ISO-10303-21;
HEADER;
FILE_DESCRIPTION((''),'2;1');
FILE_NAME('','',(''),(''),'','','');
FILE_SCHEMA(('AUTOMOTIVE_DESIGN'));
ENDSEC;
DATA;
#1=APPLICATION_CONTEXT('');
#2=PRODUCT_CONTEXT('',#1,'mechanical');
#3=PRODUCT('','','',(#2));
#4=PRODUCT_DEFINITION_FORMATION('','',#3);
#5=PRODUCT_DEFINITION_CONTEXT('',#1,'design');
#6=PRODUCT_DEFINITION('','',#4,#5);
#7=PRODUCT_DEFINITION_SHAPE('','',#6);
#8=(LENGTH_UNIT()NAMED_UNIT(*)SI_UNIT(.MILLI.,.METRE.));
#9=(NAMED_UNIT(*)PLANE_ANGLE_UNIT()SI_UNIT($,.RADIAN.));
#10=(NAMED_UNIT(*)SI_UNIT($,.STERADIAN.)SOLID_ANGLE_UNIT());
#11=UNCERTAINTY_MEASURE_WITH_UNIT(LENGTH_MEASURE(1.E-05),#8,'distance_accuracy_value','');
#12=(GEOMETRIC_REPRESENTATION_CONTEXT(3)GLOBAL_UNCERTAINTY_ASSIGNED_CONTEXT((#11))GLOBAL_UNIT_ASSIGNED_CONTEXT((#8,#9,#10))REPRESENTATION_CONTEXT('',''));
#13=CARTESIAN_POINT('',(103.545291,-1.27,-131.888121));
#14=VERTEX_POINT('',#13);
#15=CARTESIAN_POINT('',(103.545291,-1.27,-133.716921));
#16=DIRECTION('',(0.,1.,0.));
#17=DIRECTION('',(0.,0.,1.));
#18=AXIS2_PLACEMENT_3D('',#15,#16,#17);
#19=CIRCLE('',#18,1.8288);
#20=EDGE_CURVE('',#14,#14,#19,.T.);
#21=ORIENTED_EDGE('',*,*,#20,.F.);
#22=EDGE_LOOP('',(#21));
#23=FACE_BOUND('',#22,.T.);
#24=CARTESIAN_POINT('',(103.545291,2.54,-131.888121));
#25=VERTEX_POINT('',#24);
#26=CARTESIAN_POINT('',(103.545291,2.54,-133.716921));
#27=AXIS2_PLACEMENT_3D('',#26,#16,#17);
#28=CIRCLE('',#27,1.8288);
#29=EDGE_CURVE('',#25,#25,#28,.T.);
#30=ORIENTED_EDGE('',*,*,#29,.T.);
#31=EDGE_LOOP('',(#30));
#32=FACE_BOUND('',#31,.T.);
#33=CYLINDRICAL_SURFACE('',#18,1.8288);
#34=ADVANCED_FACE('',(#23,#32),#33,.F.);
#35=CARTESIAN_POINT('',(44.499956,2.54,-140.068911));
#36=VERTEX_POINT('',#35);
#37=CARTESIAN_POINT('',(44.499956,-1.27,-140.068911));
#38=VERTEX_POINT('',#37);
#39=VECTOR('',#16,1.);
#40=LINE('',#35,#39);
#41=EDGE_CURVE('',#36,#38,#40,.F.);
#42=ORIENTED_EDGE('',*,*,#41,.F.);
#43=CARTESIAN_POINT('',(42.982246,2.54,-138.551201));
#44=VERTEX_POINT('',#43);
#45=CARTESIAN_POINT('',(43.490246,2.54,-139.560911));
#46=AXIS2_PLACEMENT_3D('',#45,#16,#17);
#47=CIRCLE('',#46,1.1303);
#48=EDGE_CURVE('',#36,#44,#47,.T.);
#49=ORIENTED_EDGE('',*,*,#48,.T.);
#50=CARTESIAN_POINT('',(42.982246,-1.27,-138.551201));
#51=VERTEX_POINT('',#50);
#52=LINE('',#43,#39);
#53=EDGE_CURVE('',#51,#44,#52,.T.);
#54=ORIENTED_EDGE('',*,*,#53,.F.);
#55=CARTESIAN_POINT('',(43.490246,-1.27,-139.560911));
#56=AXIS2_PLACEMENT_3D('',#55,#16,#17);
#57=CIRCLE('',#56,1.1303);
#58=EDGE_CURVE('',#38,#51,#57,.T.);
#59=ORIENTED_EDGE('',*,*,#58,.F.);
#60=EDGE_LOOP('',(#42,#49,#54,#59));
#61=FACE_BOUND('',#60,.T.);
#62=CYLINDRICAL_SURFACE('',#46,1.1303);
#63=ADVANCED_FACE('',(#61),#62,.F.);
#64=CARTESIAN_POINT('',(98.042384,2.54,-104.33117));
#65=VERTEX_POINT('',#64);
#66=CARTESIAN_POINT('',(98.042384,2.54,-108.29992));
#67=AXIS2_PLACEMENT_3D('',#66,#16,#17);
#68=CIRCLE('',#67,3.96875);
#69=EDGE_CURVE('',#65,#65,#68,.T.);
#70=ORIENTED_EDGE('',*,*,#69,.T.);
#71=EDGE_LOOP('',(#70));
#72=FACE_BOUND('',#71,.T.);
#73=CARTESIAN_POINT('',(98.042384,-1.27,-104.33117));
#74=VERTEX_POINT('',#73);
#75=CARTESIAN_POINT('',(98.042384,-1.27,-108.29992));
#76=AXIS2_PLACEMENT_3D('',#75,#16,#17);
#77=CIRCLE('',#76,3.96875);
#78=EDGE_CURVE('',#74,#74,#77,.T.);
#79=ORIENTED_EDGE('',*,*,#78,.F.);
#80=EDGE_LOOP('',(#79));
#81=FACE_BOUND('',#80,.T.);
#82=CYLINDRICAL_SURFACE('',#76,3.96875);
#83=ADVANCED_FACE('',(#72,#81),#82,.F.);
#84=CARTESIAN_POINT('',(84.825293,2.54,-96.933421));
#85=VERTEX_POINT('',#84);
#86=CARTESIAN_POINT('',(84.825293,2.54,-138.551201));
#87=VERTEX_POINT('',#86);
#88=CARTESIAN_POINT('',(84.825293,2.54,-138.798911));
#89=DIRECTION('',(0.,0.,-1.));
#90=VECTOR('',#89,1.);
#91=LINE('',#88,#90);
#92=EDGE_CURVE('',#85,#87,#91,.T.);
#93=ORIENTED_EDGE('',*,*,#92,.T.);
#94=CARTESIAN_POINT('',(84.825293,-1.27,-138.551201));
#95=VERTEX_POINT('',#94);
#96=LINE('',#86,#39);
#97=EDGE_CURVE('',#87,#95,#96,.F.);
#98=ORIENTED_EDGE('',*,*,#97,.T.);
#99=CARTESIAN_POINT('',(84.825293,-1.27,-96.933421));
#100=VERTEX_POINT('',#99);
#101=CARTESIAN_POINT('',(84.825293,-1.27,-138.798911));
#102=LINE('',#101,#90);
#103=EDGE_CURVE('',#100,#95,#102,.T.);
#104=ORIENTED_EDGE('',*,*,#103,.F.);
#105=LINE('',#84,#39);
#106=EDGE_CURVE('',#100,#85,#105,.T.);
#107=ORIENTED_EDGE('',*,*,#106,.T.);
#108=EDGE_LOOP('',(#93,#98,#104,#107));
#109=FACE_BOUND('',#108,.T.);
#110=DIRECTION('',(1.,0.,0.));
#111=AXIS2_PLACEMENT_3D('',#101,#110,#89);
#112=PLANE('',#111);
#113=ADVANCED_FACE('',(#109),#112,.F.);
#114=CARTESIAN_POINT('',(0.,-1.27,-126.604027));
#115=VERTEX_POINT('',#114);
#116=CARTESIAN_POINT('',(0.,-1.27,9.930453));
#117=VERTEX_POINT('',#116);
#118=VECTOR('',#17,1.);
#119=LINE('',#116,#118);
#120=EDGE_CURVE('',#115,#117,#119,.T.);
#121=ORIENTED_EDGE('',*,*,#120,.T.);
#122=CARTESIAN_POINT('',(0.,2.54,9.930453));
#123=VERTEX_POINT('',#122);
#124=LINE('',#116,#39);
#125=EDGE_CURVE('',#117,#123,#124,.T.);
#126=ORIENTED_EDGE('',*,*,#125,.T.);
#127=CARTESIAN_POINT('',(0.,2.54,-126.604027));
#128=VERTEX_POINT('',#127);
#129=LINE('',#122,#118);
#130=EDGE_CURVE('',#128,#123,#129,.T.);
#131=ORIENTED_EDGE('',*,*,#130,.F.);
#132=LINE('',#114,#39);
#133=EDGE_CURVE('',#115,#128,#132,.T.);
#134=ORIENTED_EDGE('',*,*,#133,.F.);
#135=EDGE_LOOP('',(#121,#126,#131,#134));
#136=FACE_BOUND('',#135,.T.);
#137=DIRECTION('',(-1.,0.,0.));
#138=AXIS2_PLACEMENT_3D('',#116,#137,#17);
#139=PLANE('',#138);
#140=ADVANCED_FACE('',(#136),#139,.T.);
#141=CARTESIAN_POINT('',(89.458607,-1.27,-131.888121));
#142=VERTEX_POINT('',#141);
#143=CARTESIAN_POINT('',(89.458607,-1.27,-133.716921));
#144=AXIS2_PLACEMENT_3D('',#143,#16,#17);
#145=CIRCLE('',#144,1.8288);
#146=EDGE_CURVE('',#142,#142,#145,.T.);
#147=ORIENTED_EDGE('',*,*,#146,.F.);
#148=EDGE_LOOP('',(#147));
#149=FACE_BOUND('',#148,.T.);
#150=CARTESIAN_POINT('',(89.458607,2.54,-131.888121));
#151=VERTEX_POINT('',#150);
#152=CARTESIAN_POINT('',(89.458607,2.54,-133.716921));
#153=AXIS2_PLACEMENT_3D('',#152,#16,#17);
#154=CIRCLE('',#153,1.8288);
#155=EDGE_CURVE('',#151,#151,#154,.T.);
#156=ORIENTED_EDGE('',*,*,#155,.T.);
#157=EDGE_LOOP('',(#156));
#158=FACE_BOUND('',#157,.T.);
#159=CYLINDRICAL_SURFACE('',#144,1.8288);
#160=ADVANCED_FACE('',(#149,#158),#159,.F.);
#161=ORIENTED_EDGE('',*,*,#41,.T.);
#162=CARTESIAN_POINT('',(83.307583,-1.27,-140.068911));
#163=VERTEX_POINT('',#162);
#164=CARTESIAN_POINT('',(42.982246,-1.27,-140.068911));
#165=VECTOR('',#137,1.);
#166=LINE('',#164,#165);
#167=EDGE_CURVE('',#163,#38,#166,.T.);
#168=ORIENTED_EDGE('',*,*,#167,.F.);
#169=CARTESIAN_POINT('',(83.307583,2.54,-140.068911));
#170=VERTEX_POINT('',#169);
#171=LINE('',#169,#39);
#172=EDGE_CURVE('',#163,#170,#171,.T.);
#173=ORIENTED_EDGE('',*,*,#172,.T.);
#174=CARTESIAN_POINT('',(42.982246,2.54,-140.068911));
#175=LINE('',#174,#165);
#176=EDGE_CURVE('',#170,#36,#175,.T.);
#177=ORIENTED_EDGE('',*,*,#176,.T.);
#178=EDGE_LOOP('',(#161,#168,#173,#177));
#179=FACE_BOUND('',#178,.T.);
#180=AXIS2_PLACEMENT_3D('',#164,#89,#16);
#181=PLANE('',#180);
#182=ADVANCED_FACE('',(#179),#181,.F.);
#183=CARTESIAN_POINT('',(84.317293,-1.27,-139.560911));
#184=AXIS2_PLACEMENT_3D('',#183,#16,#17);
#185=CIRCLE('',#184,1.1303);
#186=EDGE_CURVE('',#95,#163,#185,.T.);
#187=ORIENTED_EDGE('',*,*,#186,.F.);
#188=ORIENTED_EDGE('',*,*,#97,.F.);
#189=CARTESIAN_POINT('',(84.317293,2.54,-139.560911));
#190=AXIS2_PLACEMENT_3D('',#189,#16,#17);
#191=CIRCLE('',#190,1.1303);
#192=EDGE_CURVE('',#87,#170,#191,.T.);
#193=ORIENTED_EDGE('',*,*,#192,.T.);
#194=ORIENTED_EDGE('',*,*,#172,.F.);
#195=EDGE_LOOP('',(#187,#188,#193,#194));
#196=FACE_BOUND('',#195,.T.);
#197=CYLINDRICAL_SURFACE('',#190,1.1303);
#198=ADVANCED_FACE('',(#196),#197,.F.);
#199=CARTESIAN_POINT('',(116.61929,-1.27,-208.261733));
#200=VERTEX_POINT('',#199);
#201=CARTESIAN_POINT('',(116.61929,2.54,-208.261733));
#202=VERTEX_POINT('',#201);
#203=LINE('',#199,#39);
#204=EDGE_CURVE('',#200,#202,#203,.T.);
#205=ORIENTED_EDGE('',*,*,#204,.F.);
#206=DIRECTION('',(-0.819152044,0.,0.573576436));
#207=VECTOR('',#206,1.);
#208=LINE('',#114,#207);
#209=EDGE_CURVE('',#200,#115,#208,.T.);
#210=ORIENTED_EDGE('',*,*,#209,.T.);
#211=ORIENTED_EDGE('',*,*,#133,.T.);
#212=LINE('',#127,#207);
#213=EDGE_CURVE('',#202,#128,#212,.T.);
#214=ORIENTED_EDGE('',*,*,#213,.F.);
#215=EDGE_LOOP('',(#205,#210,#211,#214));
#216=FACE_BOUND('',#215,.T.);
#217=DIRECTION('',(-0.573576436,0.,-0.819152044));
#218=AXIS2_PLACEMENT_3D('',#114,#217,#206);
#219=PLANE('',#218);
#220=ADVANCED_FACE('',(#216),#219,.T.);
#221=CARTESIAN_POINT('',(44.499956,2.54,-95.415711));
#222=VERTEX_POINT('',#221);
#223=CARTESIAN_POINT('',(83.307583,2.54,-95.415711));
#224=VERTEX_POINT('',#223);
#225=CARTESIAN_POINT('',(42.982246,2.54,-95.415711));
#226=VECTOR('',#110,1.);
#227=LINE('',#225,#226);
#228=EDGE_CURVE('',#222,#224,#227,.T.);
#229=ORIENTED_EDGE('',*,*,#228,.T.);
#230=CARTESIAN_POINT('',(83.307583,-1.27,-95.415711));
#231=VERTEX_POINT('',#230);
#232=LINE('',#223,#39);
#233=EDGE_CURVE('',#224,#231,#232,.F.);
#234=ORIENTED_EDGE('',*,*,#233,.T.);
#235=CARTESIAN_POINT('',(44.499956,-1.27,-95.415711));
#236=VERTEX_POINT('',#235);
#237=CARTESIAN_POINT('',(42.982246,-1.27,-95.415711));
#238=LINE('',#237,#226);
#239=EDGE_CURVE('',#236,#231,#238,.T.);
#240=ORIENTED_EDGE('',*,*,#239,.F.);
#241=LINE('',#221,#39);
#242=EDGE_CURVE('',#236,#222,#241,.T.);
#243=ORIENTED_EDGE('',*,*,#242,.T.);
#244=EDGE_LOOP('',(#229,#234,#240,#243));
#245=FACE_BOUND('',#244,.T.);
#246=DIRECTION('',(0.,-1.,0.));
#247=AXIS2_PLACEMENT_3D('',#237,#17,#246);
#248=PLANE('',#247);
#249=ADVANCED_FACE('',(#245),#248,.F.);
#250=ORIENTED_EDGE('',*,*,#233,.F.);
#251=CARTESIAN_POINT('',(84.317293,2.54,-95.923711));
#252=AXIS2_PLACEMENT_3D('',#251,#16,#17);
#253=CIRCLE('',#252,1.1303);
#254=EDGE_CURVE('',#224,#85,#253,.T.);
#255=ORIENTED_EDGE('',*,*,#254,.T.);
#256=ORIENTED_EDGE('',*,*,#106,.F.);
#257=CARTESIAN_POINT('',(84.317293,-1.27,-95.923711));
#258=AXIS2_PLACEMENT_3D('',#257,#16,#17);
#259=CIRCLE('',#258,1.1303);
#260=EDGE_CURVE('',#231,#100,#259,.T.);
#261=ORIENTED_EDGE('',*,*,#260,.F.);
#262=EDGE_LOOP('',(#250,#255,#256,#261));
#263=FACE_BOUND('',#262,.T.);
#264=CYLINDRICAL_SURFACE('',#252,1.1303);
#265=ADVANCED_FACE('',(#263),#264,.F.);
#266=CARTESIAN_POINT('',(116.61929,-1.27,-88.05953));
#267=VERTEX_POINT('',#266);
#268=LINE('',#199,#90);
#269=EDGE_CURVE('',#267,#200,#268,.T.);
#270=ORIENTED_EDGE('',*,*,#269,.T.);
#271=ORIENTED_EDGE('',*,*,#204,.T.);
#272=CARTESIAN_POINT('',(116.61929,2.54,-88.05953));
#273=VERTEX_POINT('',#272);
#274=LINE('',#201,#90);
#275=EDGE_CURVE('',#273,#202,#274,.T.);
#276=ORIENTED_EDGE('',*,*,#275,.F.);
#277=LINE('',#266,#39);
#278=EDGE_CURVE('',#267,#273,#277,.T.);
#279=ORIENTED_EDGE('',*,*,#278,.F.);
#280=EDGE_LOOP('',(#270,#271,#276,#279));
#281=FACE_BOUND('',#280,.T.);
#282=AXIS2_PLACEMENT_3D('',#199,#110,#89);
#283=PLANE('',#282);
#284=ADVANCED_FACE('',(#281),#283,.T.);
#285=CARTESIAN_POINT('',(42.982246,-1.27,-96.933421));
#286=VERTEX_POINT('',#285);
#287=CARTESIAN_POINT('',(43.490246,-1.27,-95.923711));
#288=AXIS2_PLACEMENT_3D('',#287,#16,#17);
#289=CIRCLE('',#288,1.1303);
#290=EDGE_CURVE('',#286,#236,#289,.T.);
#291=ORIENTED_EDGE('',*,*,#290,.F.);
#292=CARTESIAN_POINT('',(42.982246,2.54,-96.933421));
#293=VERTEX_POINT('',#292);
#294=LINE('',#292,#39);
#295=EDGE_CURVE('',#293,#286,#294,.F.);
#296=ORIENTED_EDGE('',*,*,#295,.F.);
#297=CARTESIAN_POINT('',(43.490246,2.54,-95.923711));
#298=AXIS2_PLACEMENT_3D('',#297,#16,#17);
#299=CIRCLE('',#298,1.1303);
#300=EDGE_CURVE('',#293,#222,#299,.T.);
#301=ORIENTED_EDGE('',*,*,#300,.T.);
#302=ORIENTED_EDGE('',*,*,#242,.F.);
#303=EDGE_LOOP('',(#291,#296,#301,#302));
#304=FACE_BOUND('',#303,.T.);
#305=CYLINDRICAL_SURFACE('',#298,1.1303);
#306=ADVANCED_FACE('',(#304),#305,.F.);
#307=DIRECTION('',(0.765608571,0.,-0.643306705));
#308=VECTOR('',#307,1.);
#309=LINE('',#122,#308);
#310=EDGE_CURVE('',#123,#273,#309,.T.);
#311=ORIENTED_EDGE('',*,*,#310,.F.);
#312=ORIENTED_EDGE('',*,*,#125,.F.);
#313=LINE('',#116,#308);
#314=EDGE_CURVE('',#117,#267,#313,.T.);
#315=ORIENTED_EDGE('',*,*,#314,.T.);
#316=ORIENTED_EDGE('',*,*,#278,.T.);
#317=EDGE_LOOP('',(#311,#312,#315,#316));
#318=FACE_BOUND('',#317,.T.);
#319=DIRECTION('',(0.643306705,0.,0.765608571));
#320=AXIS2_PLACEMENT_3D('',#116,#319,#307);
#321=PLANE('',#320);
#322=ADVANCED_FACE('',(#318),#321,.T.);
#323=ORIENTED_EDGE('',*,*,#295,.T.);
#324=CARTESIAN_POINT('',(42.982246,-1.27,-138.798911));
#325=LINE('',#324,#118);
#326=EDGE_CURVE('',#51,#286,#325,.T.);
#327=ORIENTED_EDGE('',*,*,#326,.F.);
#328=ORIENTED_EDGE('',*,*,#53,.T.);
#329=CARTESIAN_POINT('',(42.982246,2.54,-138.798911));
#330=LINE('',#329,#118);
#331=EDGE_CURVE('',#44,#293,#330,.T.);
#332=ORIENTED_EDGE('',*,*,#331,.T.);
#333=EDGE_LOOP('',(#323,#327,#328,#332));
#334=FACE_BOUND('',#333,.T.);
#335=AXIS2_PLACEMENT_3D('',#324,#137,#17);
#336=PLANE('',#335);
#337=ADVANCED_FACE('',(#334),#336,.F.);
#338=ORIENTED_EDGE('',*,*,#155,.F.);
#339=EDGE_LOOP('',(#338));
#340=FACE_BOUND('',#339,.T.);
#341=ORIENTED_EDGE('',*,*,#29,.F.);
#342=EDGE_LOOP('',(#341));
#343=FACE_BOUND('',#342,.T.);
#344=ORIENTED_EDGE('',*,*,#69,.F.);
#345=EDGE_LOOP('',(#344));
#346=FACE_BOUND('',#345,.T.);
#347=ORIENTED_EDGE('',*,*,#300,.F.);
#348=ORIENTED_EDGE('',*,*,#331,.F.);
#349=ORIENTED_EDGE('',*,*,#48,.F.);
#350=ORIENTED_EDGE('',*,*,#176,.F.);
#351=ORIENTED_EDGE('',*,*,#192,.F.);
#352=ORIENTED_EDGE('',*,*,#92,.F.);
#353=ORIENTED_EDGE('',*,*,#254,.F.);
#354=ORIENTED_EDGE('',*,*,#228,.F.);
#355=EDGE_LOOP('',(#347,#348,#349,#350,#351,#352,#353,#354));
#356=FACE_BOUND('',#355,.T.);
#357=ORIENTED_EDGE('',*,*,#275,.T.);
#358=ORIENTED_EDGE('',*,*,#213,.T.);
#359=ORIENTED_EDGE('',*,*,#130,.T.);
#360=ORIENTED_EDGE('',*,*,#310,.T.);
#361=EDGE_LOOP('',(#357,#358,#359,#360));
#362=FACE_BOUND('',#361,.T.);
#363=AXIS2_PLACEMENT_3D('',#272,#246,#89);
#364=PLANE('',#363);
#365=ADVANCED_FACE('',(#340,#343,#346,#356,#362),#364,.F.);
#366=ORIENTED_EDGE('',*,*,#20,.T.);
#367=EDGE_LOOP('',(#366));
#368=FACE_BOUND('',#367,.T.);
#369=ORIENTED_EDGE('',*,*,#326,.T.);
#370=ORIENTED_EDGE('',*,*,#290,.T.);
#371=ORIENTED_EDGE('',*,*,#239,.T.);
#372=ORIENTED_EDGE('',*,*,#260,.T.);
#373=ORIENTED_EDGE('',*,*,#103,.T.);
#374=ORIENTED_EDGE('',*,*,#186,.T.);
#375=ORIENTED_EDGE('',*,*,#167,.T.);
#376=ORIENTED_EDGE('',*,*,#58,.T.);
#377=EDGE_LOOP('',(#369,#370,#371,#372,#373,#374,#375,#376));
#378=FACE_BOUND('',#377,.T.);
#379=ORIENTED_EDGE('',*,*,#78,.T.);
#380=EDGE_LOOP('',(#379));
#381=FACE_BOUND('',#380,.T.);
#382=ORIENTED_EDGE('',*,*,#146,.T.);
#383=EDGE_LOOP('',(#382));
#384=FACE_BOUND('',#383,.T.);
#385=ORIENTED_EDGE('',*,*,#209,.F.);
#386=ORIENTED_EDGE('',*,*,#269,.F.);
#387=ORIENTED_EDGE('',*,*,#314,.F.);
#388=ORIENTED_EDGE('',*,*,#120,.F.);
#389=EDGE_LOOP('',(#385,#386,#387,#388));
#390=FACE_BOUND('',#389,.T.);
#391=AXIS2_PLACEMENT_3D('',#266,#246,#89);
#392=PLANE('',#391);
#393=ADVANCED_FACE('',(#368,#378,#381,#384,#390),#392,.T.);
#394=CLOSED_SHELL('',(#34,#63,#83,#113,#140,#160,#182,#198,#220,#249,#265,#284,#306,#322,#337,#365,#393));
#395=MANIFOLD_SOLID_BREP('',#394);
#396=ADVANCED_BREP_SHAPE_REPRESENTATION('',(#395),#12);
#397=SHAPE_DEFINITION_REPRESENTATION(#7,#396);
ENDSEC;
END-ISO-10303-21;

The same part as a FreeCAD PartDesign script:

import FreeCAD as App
import Part
import Sketcher

V = App.Vector
Q = App.Units.Quantity

doc = App.newDocument("Part")
body = doc.addObject("PartDesign::Body", "Body")

# Sketch on XZ plane
sketch1 = body.newObject("Sketcher::SketchObject", "Sketch")
sketch1.AttachmentSupport = (doc.getObject("XZ_Plane"), [""])
sketch1.MapMode = "FlatFace"
sketch1.addGeometry([
    Part.LineSegment(V(0, -126.6, 0), V(0, 9.9, 0)),  # 0
    Part.LineSegment(V(0, 9.9, 0), V(116.6, -88.1, 0)),  # 1
    Part.LineSegment(V(116.6, -88.1, 0), V(116.6, -208.3, 0)),  # 2
    Part.LineSegment(V(116.6, -208.3, 0), V(0, -126.6, 0)),  # 3
    Part.Circle(V(98, -108.3, 0), V(0, 0, 1), 4),  # 4
    Part.LineSegment(V(43, -96.8, 0), V(43, -138.8, 0)),  # 5
    Part.LineSegment(V(43, -138.8, 0), V(84.8, -138.8, 0)),  # 6
    Part.LineSegment(V(84.8, -138.8, 0), V(84.8, -96.8, 0)),  # 7
    Part.LineSegment(V(84.8, -96.8, 0), V(43, -96.8, 0)),  # 8
    Part.Circle(V(103.5, -133.7, 0), V(0, 0, 1), 1.8),  # 9
    Part.Circle(V(89.5, -133.7, 0), V(0, 0, 1), 1.8),  # 10
], False)
sketch1.addConstraint([
    Sketcher.Constraint("Coincident", 0, 2, 1, 1),
    Sketcher.Constraint("Coincident", 1, 2, 2, 1),
    Sketcher.Constraint("Coincident", 2, 2, 3, 1),
    Sketcher.Constraint("Coincident", 3, 2, 0, 1),
    Sketcher.Constraint("Coincident", 5, 2, 6, 1),
    Sketcher.Constraint("Coincident", 6, 2, 7, 1),
    Sketcher.Constraint("Coincident", 7, 2, 8, 1),
    Sketcher.Constraint("Coincident", 8, 2, 5, 1),
    Sketcher.Constraint("Vertical", 0),
    Sketcher.Constraint("Vertical", 2),
    Sketcher.Constraint("Vertical", 5),
    Sketcher.Constraint("Horizontal", 6),
    Sketcher.Constraint("Vertical", 7),
    Sketcher.Constraint("Horizontal", 8),
    Sketcher.Constraint("Equal", 9, 10),
    Sketcher.Constraint("PointOnObject", 0, 2, -2),
    Sketcher.Constraint("Horizontal", 9, 3, 10, 3),
    Sketcher.Constraint("Diameter", 4, Q("0.3125 in")),
    Sketcher.Constraint("Diameter", 9, Q("0.144 in")),
    Sketcher.Constraint("Angle", 3, Q("145 deg")),
    Sketcher.Constraint("DistanceY", 5, 2, 5, 1, Q("1.655 in")),
    Sketcher.Constraint("DistanceY", 3, 2, 1, 2, Q("1.5174999 in")),
    Sketcher.Constraint("DistanceY", 0, 1, 0, 2, 136.53448),
    Sketcher.Constraint("DistanceY", 9, 3, 4, 3, 25.417),
    Sketcher.Constraint("DistanceX", 9, 3, 1, 2, 13.073999),
    Sketcher.Constraint("Distance", 1, 152.322341),
    Sketcher.Constraint("DistanceX", 6, 1, 6, 2, 41.843047),
    Sketcher.Constraint("DistanceY", 4, 3, -1, 1, 108.29992),
    Sketcher.Constraint("DistanceY", 1, 2, -1, 1, 88.05953),
    Sketcher.Constraint("DistanceY", 5, 2, -1, 1, 138.798911),
    Sketcher.Constraint("DistanceX", 5, 2, 10, 3, 46.476361),
    Sketcher.Constraint("DistanceX", 6, 2, 4, 3, 13.217091),
    Sketcher.Constraint("DistanceX", -1, 1, 4, 3, 98.042384),
])
pad1 = body.newObject("PartDesign::Pad", "Pad")
pad1.Profile = sketch1
pad1.Type = "TwoLengths"
pad1.Length = Q("0.1 in")
pad1.Length2 = Q("0.05 in")
pad1.Reversed = True

# Sketch on XZ plane
sketch2 = body.newObject("Sketcher::SketchObject", "Sketch001")
sketch2.AttachmentSupport = (doc.getObject("XZ_Plane"), [""])
sketch2.MapMode = "FlatFace"
sketch2.AttachmentOffset = App.Placement(V(0, 0, -0.1 * 25.4), App.Rotation())
sketch2.addGeometry([
    Part.LineSegment(V(43, -96.8, 0), V(43, -95.4, 0)),  # 0
    Part.LineSegment(V(43, -95.4, 0), V(84.8, -95.4, 0)),  # 1
    Part.LineSegment(V(84.8, -95.4, 0), V(84.8, -96.8, 0)),  # 2
    Part.LineSegment(V(84.8, -96.8, 0), V(43, -96.8, 0)),  # 3
    Part.LineSegment(V(43, -140.1, 0), V(43, -138.8, 0)),  # 4
    Part.LineSegment(V(43, -138.8, 0), V(84.8, -138.8, 0)),  # 5
    Part.LineSegment(V(84.8, -138.8, 0), V(84.8, -140.1, 0)),  # 6
    Part.LineSegment(V(84.8, -140.1, 0), V(43, -140.1, 0)),  # 7
], False)
sketch2.addConstraint([
    Sketcher.Constraint("Coincident", 0, 2, 1, 1),
    Sketcher.Constraint("Coincident", 1, 2, 2, 1),
    Sketcher.Constraint("Coincident", 2, 2, 3, 1),
    Sketcher.Constraint("Coincident", 3, 2, 0, 1),
    Sketcher.Constraint("Coincident", 4, 2, 5, 1),
    Sketcher.Constraint("Coincident", 5, 2, 6, 1),
    Sketcher.Constraint("Coincident", 6, 2, 7, 1),
    Sketcher.Constraint("Coincident", 7, 2, 4, 1),
    Sketcher.Constraint("Vertical", 0),
    Sketcher.Constraint("Horizontal", 1),
    Sketcher.Constraint("Vertical", 2),
    Sketcher.Constraint("Horizontal", 3),
    Sketcher.Constraint("Vertical", 4),
    Sketcher.Constraint("Horizontal", 5),
    Sketcher.Constraint("Vertical", 6),
    Sketcher.Constraint("Horizontal", 7),
    Sketcher.Constraint("Vertical", 3, 2, 4, 2),
    Sketcher.Constraint("Vertical", 2, 2, 5, 2),
    Sketcher.Constraint("DistanceY", 4, 1, 4, 2, Q("0.05 in")),
    Sketcher.Constraint("DistanceY", 0, 1, 0, 2, Q("0.053 in")),
    Sketcher.Constraint("DistanceY", 4, 2, 3, 2, Q("1.655 in")),
    Sketcher.Constraint("DistanceX", 1, 1, 1, 2, 41.843047),
    Sketcher.Constraint("DistanceY", 0, 2, -1, 1, 95.415711),
    Sketcher.Constraint("DistanceX", -1, 1, 0, 2, 42.982246),
])
pocket1 = body.newObject("PartDesign::Pocket", "Pocket")
pocket1.Profile = sketch2
pocket1.Type = "ThroughAll"
pocket1.Reversed = True

# Sketch on XZ plane
sketch3 = body.newObject("Sketcher::SketchObject", "Sketch002")
sketch3.AttachmentSupport = (doc.getObject("XZ_Plane"), [""])
sketch3.MapMode = "FlatFace"
sketch3.AttachmentOffset = App.Placement(V(0, 0, -0.1 * 25.4), App.Rotation())
sketch3.addGeometry([
    Part.Circle(V(84.3, -95.9, 0), V(0, 0, 1), 1.1),
    Part.Circle(V(84.3, -139.6, 0), V(0, 0, 1), 1.1),
    Part.Circle(V(43.5, -95.9, 0), V(0, 0, 1), 1.1),
    Part.Circle(V(43.5, -139.6, 0), V(0, 0, 1), 1.1),
], False)
sketch3.addConstraint([
    Sketcher.Constraint("Equal", 0, 1),
    Sketcher.Constraint("Equal", 1, 2),
    Sketcher.Constraint("Equal", 2, 3),
    Sketcher.Constraint("Horizontal", 0, 3, 2, 3),
    Sketcher.Constraint("Horizontal", 1, 3, 3, 3),
    Sketcher.Constraint("Vertical", 0, 3, 1, 3),
    Sketcher.Constraint("Vertical", 2, 3, 3, 3),
    Sketcher.Constraint("Diameter", 0, Q("0.089 in")),
    Sketcher.Constraint("DistanceY", 1, 3, 0, 3, Q("1.718 in")),
    Sketcher.Constraint("DistanceY", 0, 3, -1, 1, 95.923711),
    Sketcher.Constraint("DistanceX", -1, 1, 0, 3, 84.317293),
    Sketcher.Constraint("DistanceX", -1, 1, 2, 3, 43.490246),
])
doc.recompute()
hole = body.newObject("PartDesign::Hole", "Hole")
hole.Profile = sketch3
hole.ThreadType = "None"
hole.Diameter = Q("0.089 in")
hole.DepthType = "ThroughAll"
hole.Reversed = True

doc.recompute()
